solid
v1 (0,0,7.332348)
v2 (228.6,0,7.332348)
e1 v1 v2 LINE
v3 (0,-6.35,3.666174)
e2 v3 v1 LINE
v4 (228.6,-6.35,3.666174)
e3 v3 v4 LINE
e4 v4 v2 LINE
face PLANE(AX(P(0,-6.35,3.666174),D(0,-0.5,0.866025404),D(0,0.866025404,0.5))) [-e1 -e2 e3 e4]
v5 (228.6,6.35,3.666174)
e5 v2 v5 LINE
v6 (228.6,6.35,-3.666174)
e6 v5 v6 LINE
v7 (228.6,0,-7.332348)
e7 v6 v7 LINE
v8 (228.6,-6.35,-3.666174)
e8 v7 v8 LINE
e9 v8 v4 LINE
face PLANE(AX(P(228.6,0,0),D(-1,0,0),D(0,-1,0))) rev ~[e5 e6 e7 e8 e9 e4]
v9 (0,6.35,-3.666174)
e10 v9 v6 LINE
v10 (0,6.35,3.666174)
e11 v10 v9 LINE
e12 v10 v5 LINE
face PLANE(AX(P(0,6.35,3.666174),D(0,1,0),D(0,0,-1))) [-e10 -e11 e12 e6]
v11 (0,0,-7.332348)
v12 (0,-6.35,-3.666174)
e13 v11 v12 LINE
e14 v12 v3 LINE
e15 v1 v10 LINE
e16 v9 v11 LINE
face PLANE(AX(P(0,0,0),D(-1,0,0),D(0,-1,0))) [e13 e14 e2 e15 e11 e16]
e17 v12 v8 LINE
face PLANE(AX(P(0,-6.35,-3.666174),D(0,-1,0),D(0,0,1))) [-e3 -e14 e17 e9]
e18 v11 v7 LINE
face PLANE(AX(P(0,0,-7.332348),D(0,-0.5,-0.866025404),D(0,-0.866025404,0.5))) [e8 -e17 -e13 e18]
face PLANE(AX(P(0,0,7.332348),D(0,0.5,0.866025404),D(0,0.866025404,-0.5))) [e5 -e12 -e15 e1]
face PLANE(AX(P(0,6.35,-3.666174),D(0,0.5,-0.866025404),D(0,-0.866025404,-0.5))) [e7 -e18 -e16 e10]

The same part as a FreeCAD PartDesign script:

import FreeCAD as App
import Part
import Sketcher
Q = App.Units.Quantity

doc = App.newDocument("Part")
params = doc.addObject("Spreadsheet::Sheet", "Params")
for row, (alias, value) in enumerate([
    ("pad1_length", "9 in"),
], start=1):
    params.set(f"A{row}", alias)
    params.set(f"B{row}", "=" + value)
    params.setAlias(f"B{row}", alias)

body = doc.addObject("PartDesign::Body", "Body")

# Sketch on YZ plane
sketch1 = body.newObject("Sketcher::SketchObject", "Sketch")
sketch1.AttachmentSupport = (doc.getObject("YZ_Plane"), [""])
sketch1.MapMode = "FlatFace"
sketch1.addGeometry(Part.LineSegment(App.Vector(6.35, 3.666174, 0), App.Vector(6.35, -3.666174, 0)), False)
sketch1.addGeometry(Part.LineSegment(App.Vector(6.35, -3.666174, 0), App.Vector(0, -7.332348, 0)), False)
sketch1.addGeometry(Part.LineSegment(App.Vector(0, -7.332348, 0), App.Vector(-6.35, -3.666174, 0)), False)
sketch1.addGeometry(Part.LineSegment(App.Vector(-6.35, -3.666174, 0), App.Vector(-6.35, 3.666174, 0)), False)
sketch1.addGeometry(Part.LineSegment(App.Vector(-6.35, 3.666174, 0), App.Vector(0, 7.332348, 0)), False)
sketch1.addGeometry(Part.LineSegment(App.Vector(0, 7.332348, 0), App.Vector(6.35, 3.666174, 0)), False)
sketch1.addConstraint(Sketcher.Constraint("Coincident", 0, 2, 1, 1))
sketch1.addConstraint(Sketcher.Constraint("Coincident", 1, 2, 2, 1))
sketch1.addConstraint(Sketcher.Constraint("Coincident", 2, 2, 3, 1))
sketch1.addConstraint(Sketcher.Constraint("Coincident", 3, 2, 4, 1))
sketch1.addConstraint(Sketcher.Constraint("Coincident", 4, 2, 5, 1))
sketch1.addConstraint(Sketcher.Constraint("Coincident", 5, 2, 0, 1))
sketch1.addConstraint(Sketcher.Constraint("Vertical", 0))
sketch1.addConstraint(Sketcher.Constraint("Vertical", 3))
sketch1.addConstraint(Sketcher.Constraint("Symmetric", 0, 2, 3, 2, -1, 1))
sketch1.addConstraint(Sketcher.Constraint("Symmetric", 1, 2, 4, 2, -1, 1))
sketch1.addConstraint(Sketcher.Constraint("PointOnObject", 1, 2, -2))
sketch1.addConstraint(Sketcher.Constraint("Parallel", 2, 5))
sketch1.addConstraint(Sketcher.Constraint("Horizontal", 0, 2, 2, 2))
sketch1.addConstraint(Sketcher.Constraint("Angle", 1, Q("-150 deg")))
sketch1.addConstraint(Sketcher.Constraint("DistanceX", 2, 2, 0, 2, Q("0.5 in")))
sketch1.addConstraint(Sketcher.Constraint("DistanceY", 0, 2, 0, 1, 7.332348))
pad1 = body.newObject("PartDesign::Pad", "Pad")
pad1.Profile = sketch1
pad1.setExpression("Length", "Params.pad1_length")

doc.recompute()
